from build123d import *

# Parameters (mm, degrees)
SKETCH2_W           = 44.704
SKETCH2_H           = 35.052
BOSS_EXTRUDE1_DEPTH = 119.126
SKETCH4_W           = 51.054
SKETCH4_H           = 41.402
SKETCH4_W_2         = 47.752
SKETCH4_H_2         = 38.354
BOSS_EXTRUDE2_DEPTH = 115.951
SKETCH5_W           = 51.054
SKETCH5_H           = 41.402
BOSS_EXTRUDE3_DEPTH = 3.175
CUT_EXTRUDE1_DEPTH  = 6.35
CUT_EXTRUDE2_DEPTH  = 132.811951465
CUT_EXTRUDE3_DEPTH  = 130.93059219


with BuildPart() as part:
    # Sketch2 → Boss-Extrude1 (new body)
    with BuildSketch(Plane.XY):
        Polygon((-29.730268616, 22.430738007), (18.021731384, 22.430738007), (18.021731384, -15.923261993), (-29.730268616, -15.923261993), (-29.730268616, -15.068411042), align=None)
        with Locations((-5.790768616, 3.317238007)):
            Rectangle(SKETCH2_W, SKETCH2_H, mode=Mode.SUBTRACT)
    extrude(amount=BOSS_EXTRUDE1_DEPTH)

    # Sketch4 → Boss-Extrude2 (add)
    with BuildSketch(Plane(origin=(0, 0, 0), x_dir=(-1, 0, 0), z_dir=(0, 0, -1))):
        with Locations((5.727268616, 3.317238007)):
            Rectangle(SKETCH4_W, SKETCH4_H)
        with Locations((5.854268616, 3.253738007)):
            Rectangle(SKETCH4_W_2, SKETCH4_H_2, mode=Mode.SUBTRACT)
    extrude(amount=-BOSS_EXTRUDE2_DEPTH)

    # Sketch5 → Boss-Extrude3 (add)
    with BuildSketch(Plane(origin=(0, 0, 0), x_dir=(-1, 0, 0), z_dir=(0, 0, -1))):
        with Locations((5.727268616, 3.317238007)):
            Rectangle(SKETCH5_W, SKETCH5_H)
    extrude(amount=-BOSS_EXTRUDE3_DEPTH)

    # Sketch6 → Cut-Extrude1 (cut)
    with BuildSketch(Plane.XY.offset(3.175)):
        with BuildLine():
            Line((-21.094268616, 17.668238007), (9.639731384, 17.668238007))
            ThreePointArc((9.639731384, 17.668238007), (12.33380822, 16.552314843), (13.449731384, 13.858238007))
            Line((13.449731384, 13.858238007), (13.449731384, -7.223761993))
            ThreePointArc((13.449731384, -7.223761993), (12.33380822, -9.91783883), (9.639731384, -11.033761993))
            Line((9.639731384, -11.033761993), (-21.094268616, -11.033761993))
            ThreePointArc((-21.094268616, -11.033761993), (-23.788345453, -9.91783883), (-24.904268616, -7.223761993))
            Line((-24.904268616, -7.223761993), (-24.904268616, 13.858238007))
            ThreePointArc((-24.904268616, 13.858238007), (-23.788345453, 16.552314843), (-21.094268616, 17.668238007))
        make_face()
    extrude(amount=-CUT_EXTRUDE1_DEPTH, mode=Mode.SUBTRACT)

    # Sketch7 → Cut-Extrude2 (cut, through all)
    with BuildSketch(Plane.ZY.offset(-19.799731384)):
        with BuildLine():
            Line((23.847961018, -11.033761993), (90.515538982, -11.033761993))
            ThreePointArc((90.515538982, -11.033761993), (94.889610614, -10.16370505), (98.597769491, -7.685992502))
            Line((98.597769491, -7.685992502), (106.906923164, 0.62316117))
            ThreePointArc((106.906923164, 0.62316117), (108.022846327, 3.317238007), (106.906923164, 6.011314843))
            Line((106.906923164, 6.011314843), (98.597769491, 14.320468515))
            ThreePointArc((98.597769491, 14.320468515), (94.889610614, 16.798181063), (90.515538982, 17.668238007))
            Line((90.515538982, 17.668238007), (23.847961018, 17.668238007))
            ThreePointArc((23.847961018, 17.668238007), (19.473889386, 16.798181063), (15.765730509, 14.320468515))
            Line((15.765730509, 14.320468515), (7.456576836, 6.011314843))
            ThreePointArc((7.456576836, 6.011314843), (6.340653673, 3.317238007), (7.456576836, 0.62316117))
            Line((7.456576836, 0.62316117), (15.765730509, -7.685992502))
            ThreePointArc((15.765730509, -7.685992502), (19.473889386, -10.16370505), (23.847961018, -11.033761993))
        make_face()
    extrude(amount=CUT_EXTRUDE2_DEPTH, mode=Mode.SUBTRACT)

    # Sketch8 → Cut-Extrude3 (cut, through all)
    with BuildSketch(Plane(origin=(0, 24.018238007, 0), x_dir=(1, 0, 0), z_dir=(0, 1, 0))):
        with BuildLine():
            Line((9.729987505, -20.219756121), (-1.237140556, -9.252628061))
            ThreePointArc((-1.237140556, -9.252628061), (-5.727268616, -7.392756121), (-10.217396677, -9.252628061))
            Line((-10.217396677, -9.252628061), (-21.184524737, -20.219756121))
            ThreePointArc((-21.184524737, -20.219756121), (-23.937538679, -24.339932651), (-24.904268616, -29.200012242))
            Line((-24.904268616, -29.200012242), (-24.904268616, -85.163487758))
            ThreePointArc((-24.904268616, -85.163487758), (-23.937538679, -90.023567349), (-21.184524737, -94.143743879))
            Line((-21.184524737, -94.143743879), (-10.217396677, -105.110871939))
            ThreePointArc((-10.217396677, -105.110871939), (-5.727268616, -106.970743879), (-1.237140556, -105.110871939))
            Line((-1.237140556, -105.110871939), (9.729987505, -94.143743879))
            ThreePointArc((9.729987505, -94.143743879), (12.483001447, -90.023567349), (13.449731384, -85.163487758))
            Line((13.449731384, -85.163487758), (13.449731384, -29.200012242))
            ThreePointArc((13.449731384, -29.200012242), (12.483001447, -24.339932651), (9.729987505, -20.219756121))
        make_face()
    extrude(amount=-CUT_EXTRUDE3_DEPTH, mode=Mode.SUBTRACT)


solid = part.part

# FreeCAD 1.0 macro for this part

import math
import FreeCAD as App
import Part
import Sketcher
Q = App.Units.Quantity

doc = App.newDocument("Part")
body = doc.addObject("PartDesign::Body", "Body")

sketch1 = body.newObject("Sketcher::SketchObject", "Sketch")
sketch1.AttachmentSupport = (doc.getObject("XY_Plane"), [""])
sketch1.MapMode = "FlatFace"
sketch1.addGeometry([
    Part.LineSegment(App.Vector(18, 22, 0), App.Vector(-30, 22, 0)),
    Part.LineSegment(App.Vector(-30, 22, 0), App.Vector(-30, -16, 0)),
    Part.LineSegment(App.Vector(-30, -16, 0), App.Vector(18, -16, 0)),
    Part.LineSegment(App.Vector(18, -16, 0), App.Vector(18, 22, 0)),
    Part.LineSegment(App.Vector(-28, -14, 0), App.Vector(-28, 21, 0)),
    Part.LineSegment(App.Vector(-28, 21, 0), App.Vector(17, 21, 0)),
    Part.LineSegment(App.Vector(17, 21, 0), App.Vector(17, -14, 0)),
    Part.LineSegment(App.Vector(17, -14, 0), App.Vector(-28, -14, 0)),
], False)
sketch1.addConstraint([
    Sketcher.Constraint("Coincident", 0, 2, 1, 1),
    Sketcher.Constraint("Coincident", 1, 2, 2, 1),
    Sketcher.Constraint("Coincident", 2, 2, 3, 1),
    Sketcher.Constraint("Coincident", 3, 2, 0, 1),
    Sketcher.Constraint("Coincident", 4, 2, 5, 1),
    Sketcher.Constraint("Coincident", 5, 2, 6, 1),
    Sketcher.Constraint("Coincident", 6, 2, 7, 1),
    Sketcher.Constraint("Coincident", 7, 2, 4, 1),
    Sketcher.Constraint("Horizontal", 0),
    Sketcher.Constraint("Vertical", 1),
    Sketcher.Constraint("Horizontal", 2),
    Sketcher.Constraint("Vertical", 3),
    Sketcher.Constraint("Vertical", 4),
    Sketcher.Constraint("Horizontal", 5),
    Sketcher.Constraint("Vertical", 6),
    Sketcher.Constraint("Horizontal", 7),
    Sketcher.Constraint("DistanceX", 0, 2, 0, 1, Q("1.88 in")),
    Sketcher.Constraint("DistanceX", 5, 1, 5, 2, Q("1.76 in")),
    Sketcher.Constraint("DistanceY", 1, 2, 1, 1, Q("1.51 in")),
    Sketcher.Constraint("DistanceY", 4, 1, 4, 2, Q("1.38 in")),
    Sketcher.Constraint("DistanceX", 0, 2, 4, 2, Q("0.0625 in")),
    Sketcher.Constraint("DistanceY", 4, 2, 0, 2, Q("0.0625 in")),
    Sketcher.Constraint("DistanceY", -1, 1, 0, 2, Q("0.8830999 in")),
    Sketcher.Constraint("DistanceX", 0, 2, -1, 1, Q("29.730269 mm")),
])
pad1 = body.newObject("PartDesign::Pad", "Pad")
pad1.Profile = sketch1
pad1.Length = Q("4.69 in")

sketch2 = body.newObject("Sketcher::SketchObject", "Sketch001")
sketch2.AttachmentSupport = (doc.getObject("XY_Plane"), [""])
sketch2.MapMode = "FlatFace"
sketch2.addGeometry([
    Part.LineSegment(App.Vector(20, 24, 0), App.Vector(20, -17, 0)),
    Part.LineSegment(App.Vector(20, -17, 0), App.Vector(-31, -17, 0)),
    Part.LineSegment(App.Vector(-31, -17, 0), App.Vector(-31, 24, 0)),
    Part.LineSegment(App.Vector(-31, 24, 0), App.Vector(20, 24, 0)),
    Part.LineSegment(App.Vector(-30, -16, 0), App.Vector(18, -16, 0)),
    Part.LineSegment(App.Vector(18, -16, 0), App.Vector(18, 22, 0)),
    Part.LineSegment(App.Vector(18, 22, 0), App.Vector(-30, 22, 0)),
    Part.LineSegment(App.Vector(-30, 22, 0), App.Vector(-30, -16, 0)),
], False)
sketch2.addConstraint([
    Sketcher.Constraint("Coincident", 0, 2, 1, 1),
    Sketcher.Constraint("Coincident", 1, 2, 2, 1),
    Sketcher.Constraint("Coincident", 2, 2, 3, 1),
    Sketcher.Constraint("Coincident", 3, 2, 0, 1),
    Sketcher.Constraint("Coincident", 4, 2, 5, 1),
    Sketcher.Constraint("Coincident", 5, 2, 6, 1),
    Sketcher.Constraint("Coincident", 6, 2, 7, 1),
    Sketcher.Constraint("Coincident", 7, 2, 4, 1),
    Sketcher.Constraint("Vertical", 0),
    Sketcher.Constraint("Horizontal", 1),
    Sketcher.Constraint("Vertical", 2),
    Sketcher.Constraint("Horizontal", 3),
    Sketcher.Constraint("Horizontal", 4),
    Sketcher.Constraint("Vertical", 5),
    Sketcher.Constraint("Horizontal", 6),
    Sketcher.Constraint("Vertical", 7),
    Sketcher.Constraint("DistanceX", 1, 2, 1, 1, Q("2.01 in")),
    Sketcher.Constraint("DistanceX", 4, 1, 4, 2, Q("1.88 in")),
    Sketcher.Constraint("DistanceY", 0, 2, 0, 1, Q("1.63 in")),
    Sketcher.Constraint("DistanceY", 5, 1, 5, 2, Q("1.51 in")),
    Sketcher.Constraint("DistanceX", 4, 2, 0, 2, Q("0.07 in")),
    Sketcher.Constraint("DistanceY", 5, 2, 3, 2, Q("0.0625 in")),
    Sketcher.Constraint("DistanceY", 0, 2, -1, 1, Q("0.6844001 in")),
    Sketcher.Constraint("DistanceX", -1, 1, 0, 2, Q("19.799731 mm")),
])
pad2 = body.newObject("PartDesign::Pad", "Pad001")
pad2.Profile = sketch2
pad2.Length = Q("4.565 in")

sketch3 = body.newObject("Sketcher::SketchObject", "Sketch002")
sketch3.AttachmentSupport = (doc.getObject("XY_Plane"), [""])
sketch3.MapMode = "FlatFace"
sketch3.addGeometry([
    Part.LineSegment(App.Vector(20, 24, 0), App.Vector(20, -17, 0)),
    Part.LineSegment(App.Vector(20, -17, 0), App.Vector(-31, -17, 0)),
    Part.LineSegment(App.Vector(-31, -17, 0), App.Vector(-31, 24, 0)),
    Part.LineSegment(App.Vector(-31, 24, 0), App.Vector(20, 24, 0)),
], False)
sketch3.addConstraint([
    Sketcher.Constraint("Coincident", 0, 2, 1, 1),
    Sketcher.Constraint("Coincident", 1, 2, 2, 1),
    Sketcher.Constraint("Coincident", 2, 2, 3, 1),
    Sketcher.Constraint("Coincident", 3, 2, 0, 1),
    Sketcher.Constraint("Vertical", 0),
    Sketcher.Constraint("Horizontal", 1),
    Sketcher.Constraint("Vertical", 2),
    Sketcher.Constraint("Horizontal", 3),
    Sketcher.Constraint("DistanceX", 1, 2, 1, 1, Q("2.01 in")),
    Sketcher.Constraint("DistanceY", 0, 2, 0, 1, Q("1.63 in")),
    Sketcher.Constraint("DistanceY", 0, 2, -1, 1, Q("0.6844001 in")),
    Sketcher.Constraint("DistanceX", -1, 1, 0, 2, Q("19.799731 mm")),
])
pad3 = body.newObject("PartDesign::Pad", "Pad002")
pad3.Profile = sketch3
pad3.Length = Q("0.125 in")

sketch4 = body.newObject("Sketcher::SketchObject", "Sketch003")
sketch4.AttachmentSupport = (doc.getObject("XY_Plane"), [""])
sketch4.MapMode = "FlatFace"
sketch4.AttachmentOffset = App.Placement(App.Vector(0, 0, 0.125 * 25.4), App.Rotation())
sketch4.addGeometry([
    Part.LineSegment(App.Vector(9.6, 17.7, 0), App.Vector(-21.1, 17.7, 0)),
    Part.ArcOfCircle(Part.Circle(App.Vector(-21.1, 13.9, 0), App.Vector(0, 0, 1), 3.8), math.radians(90), math.radians(180)),
    Part.LineSegment(App.Vector(-24.9, 13.9, 0), App.Vector(-24.9, -7.2, 0)),
    Part.ArcOfCircle(Part.Circle(App.Vector(-21.1, -7.2, 0), App.Vector(0, 0, 1), 3.8), math.radians(180), math.radians(270)),
    Part.LineSegment(App.Vector(-21.1, -11, 0), App.Vector(9.6, -11, 0)),
    Part.ArcOfCircle(Part.Circle(App.Vector(9.6, -7.2, 0), App.Vector(0, 0, 1), 3.8), math.radians(-90), math.radians(0)),
    Part.LineSegment(App.Vector(13.4, -7.2, 0), App.Vector(13.4, 13.9, 0)),
    Part.ArcOfCircle(Part.Circle(App.Vector(9.6, 13.9, 0), App.Vector(0, 0, 1), 3.8), math.radians(0), math.radians(90)),
], False)
sketch4.addConstraint([
    Sketcher.Constraint("Tangent", 0, 2, 1, 1),
    Sketcher.Constraint("Tangent", 1, 2, 2, 1),
    Sketcher.Constraint("Tangent", 2, 2, 3, 1),
    Sketcher.Constraint("Tangent", 3, 2, 4, 1),
    Sketcher.Constraint("Tangent", 4, 2, 5, 1),
    Sketcher.Constraint("Tangent", 5, 2, 6, 1),
    Sketcher.Constraint("Tangent", 6, 2, 7, 1),
    Sketcher.Constraint("Tangent", 7, 2, 0, 1),
    Sketcher.Constraint("Horizontal", 0),
    Sketcher.Constraint("Vertical", 2),
    Sketcher.Constraint("Horizontal", 4),
    Sketcher.Constraint("Vertical", 6),
    Sketcher.Constraint("Equal", 1, 3),
    Sketcher.Constraint("Equal", 3, 5),
    Sketcher.Constraint("Equal", 5, 7),
    Sketcher.Constraint("Radius", 1, Q("0.15 in")),
    Sketcher.Constraint("DistanceX", 0, 2, 0, 1, Q("1.21 in")),
    Sketcher.Constraint("DistanceY", 2, 2, 2, 1, Q("0.83 in")),
    Sketcher.Constraint("DistanceY", -1, 1, 1, 3, Q("0.5455999 in")),
    Sketcher.Constraint("DistanceX", 1, 3, -1, 1, Q("21.094269 mm")),
])
pocket1 = body.newObject("PartDesign::Pocket", "Pocket")
pocket1.Profile = sketch4
pocket1.Length = Q("0.25 in")

sketch5 = body.newObject("Sketcher::SketchObject", "Sketch004")
sketch5.AttachmentSupport = (doc.getObject("YZ_Plane"), [""])
sketch5.MapMode = "FlatFace"
sketch5.AttachmentOffset = App.Placement(App.Vector(0, 0, 19.799731), App.Rotation())
sketch5.addGeometry([
    Part.LineSegment(App.Vector(-11, 23.8, 0), App.Vector(-11, 90.5, 0)),
    Part.ArcOfCircle(Part.Circle(App.Vector(0.4, 90.5, 0), App.Vector(0, 0, 1), 11.4), math.radians(135), math.radians(180)),
    Part.LineSegment(App.Vector(-7.7, 98.6, 0), App.Vector(0.6, 106.9, 0)),
    Part.ArcOfCircle(Part.Circle(App.Vector(3.3, 104.2, 0), App.Vector(0, 0, 1), 3.8), math.radians(45), math.radians(135)),
    Part.LineSegment(App.Vector(6, 106.9, 0), App.Vector(14.3, 98.6, 0)),
    Part.ArcOfCircle(Part.Circle(App.Vector(6.2, 90.5, 0), App.Vector(0, 0, 1), 11.4), math.radians(0), math.radians(45)),
    Part.LineSegment(App.Vector(17.7, 90.5, 0), App.Vector(17.7, 23.8, 0)),
    Part.ArcOfCircle(Part.Circle(App.Vector(6.2, 23.8, 0), App.Vector(0, 0, 1), 11.4), math.radians(-45), math.radians(0)),
    Part.LineSegment(App.Vector(14.3, 15.8, 0), App.Vector(6, 7.5, 0)),
    Part.ArcOfCircle(Part.Circle(App.Vector(3.3, 10.2, 0), App.Vector(0, 0, 1), 3.8), math.radians(-135), math.radians(-45)),
    Part.LineSegment(App.Vector(0.6, 7.5, 0), App.Vector(-7.7, 15.8, 0)),
    Part.ArcOfCircle(Part.Circle(App.Vector(0.4, 23.8, 0), App.Vector(0, 0, 1), 11.4), math.radians(180), math.radians(225)),
], False)
sketch5.addConstraint([
    Sketcher.Constraint("Tangent", 0, 2, 1, 2),
    Sketcher.Constraint("Tangent", 1, 1, 2, 1),
    Sketcher.Constraint("Tangent", 2, 2, 3, 2),
    Sketcher.Constraint("Tangent", 3, 1, 4, 1),
    Sketcher.Constraint("Tangent", 4, 2, 5, 2),
    Sketcher.Constraint("Tangent", 5, 1, 6, 1),
    Sketcher.Constraint("Tangent", 6, 2, 7, 2),
    Sketcher.Constraint("Tangent", 7, 1, 8, 1),
    Sketcher.Constraint("Tangent", 8, 2, 9, 2),
    Sketcher.Constraint("Tangent", 9, 1, 10, 1),
    Sketcher.Constraint("Tangent", 10, 2, 11, 2),
    Sketcher.Constraint("Tangent", 11, 1, 0, 1),
    Sketcher.Constraint("Vertical", 0),
    Sketcher.Constraint("Vertical", 6),
    Sketcher.Constraint("Equal", 1, 5),
    Sketcher.Constraint("Equal", 5, 7),
    Sketcher.Constraint("Equal", 3, 9),
    Sketcher.Constraint("Equal", 7, 11),
    Sketcher.Constraint("Perpendicular", 2, 4),
    Sketcher.Constraint("Perpendicular", 4, 8),
    Sketcher.Constraint("Perpendicular", 8, 10),
    Sketcher.Constraint("Horizontal", 1, 3, 5, 3),
    Sketcher.Constraint("Horizontal", 7, 3, 11, 3),
    Sketcher.Constraint("Horizontal", 2, 2, 3, 1),
    Sketcher.Constraint("Radius", 1, Q("0.45 in")),
    Sketcher.Constraint("Radius", 3, Q("0.15 in")),
    Sketcher.Constraint("DistanceX", 1, 3, 5, 3, Q("0.23 in")),
    Sketcher.Constraint("DistanceX", -1, 1, 1, 3, Q("0.0155999 in")),
    Sketcher.Constraint("DistanceY", 0, 1, 0, 2, Q("66.667578 mm")),
    Sketcher.Constraint("DistanceY", -1, 1, 1, 3, Q("90.515539 mm")),
])
pocket2 = body.newObject("PartDesign::Pocket", "Pocket001")
pocket2.Profile = sketch5
pocket2.Type = "ThroughAll"

sketch6 = body.newObject("Sketcher::SketchObject", "Sketch005")
sketch6.AttachmentSupport = (doc.getObject("XZ_Plane"), [""])
sketch6.MapMode = "FlatFace"
sketch6.AttachmentOffset = App.Placement(App.Vector(0, 0, -0.9455999 * 25.4), App.Rotation())
sketch6.addGeometry([
    Part.LineSegment(App.Vector(10, 20, 0), App.Vector(-1, 9, 0)),
    Part.ArcOfCircle(Part.Circle(App.Vector(-6, 14, 0), App.Vector(0, 0, 1), 6), math.radians(-135), math.radians(-45)),
    Part.LineSegment(App.Vector(-10, 9, 0), App.Vector(-21, 20, 0)),
    Part.ArcOfCircle(Part.Circle(App.Vector(-12, 29, 0), App.Vector(0, 0, 1), 13), math.radians(180), math.radians(225)),
    Part.LineSegment(App.Vector(-25, 29, 0), App.Vector(-25, 85, 0)),
    Part.ArcOfCircle(Part.Circle(App.Vector(-12, 85, 0), App.Vector(0, 0, 1), 13), math.radians(135), math.radians(180)),
    Part.LineSegment(App.Vector(-21, 94, 0), App.Vector(-10, 105, 0)),
    Part.ArcOfCircle(Part.Circle(App.Vector(-6, 101, 0), App.Vector(0, 0, 1), 6), math.radians(45), math.radians(135)),
    Part.LineSegment(App.Vector(-1, 105, 0), App.Vector(10, 94, 0)),
    Part.ArcOfCircle(Part.Circle(App.Vector(1, 85, 0), App.Vector(0, 0, 1), 13), math.radians(0), math.radians(45)),
    Part.LineSegment(App.Vector(13, 85, 0), App.Vector(13, 29, 0)),
    Part.ArcOfCircle(Part.Circle(App.Vector(1, 29, 0), App.Vector(0, 0, 1), 13), math.radians(-45), math.radians(0)),
], False)
sketch6.addConstraint([
    Sketcher.Constraint("Tangent", 0, 2, 1, 2),
    Sketcher.Constraint("Tangent", 1, 1, 2, 1),
    Sketcher.Constraint("Tangent", 2, 2, 3, 2),
    Sketcher.Constraint("Tangent", 3, 1, 4, 1),
    Sketcher.Constraint("Tangent", 4, 2, 5, 2),
    Sketcher.Constraint("Tangent", 5, 1, 6, 1),
    Sketcher.Constraint("Tangent", 6, 2, 7, 2),
    Sketcher.Constraint("Tangent", 7, 1, 8, 1),
    Sketcher.Constraint("Tangent", 8, 2, 9, 2),
    Sketcher.Constraint("Tangent", 9, 1, 10, 1),
    Sketcher.Constraint("Tangent", 10, 2, 11, 2),
    Sketcher.Constraint("Tangent", 11, 1, 0, 1),
    Sketcher.Constraint("Vertical", 4),
    Sketcher.Constraint("Vertical", 10),
    Sketcher.Constraint("Equal", 3, 5),
    Sketcher.Constraint("Equal", 1, 7),
    Sketcher.Constraint("Equal", 5, 9),
    Sketcher.Constraint("Equal", 9, 11),
    Sketcher.Constraint("Perpendicular", 0, 2),
    Sketcher.Constraint("Perpendicular", 2, 6),
    Sketcher.Constraint("Perpendicular", 6, 8),
    Sketcher.Constraint("Horizontal", 5, 3, 9, 3),
    Sketcher.Constraint("Horizontal", 3, 3, 11, 3),
    Sketcher.Constraint("Horizontal", 0, 2, 1, 1),
    Sketcher.Constraint("Radius", 3, Q("0.5 in")),
    Sketcher.Constraint("Radius", 1, Q("0.25 in")),
    Sketcher.Constraint("DistanceX", 5, 3, 9, 3, Q("0.51 in")),
    Sketcher.Constraint("DistanceY", 4, 1, 4, 2, Q("55.963476 mm")),
    Sketcher.Constraint("DistanceX", 1, 3, -1, 1, Q("5.727269 mm")),
    Sketcher.Constraint("DistanceY", -1, 1, 0, 2, Q("9.252628 mm")),
])
pocket3 = body.newObject("PartDesign::Pocket", "Pocket002")
pocket3.Profile = sketch6
pocket3.Type = "ThroughAll"
pocket3.Reversed = True

doc.recompute()
